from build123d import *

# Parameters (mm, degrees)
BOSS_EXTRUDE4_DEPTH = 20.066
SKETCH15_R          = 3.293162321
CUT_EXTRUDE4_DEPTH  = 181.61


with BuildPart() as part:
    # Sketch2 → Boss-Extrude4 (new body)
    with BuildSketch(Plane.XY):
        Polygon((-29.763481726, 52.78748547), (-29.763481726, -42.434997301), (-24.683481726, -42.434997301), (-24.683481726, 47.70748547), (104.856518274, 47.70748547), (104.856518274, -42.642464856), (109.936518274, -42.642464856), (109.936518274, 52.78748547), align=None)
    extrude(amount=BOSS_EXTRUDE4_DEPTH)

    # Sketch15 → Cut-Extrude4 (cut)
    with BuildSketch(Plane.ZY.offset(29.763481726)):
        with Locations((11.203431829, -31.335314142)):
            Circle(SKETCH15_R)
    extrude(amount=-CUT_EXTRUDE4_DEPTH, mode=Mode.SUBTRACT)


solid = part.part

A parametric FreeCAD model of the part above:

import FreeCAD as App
import Part
import Sketcher

V = App.Vector
Q = App.Units.Quantity


def add_polygon(sketch, points):
    """Adds a closed chain of lines whose ends are joined by coincident constraints."""
    first, n = sketch.GeometryCount, len(points)
    for a, b in zip(points, points[1:] + points[:1]):
        sketch.addGeometry(Part.LineSegment(App.Vector(*a, 0), App.Vector(*b, 0)), False)
    for i in range(n):
        sketch.addConstraint(Sketcher.Constraint("Coincident", first + i, 2, first + (i + 1) % n, 1))

doc = App.newDocument("Part")
params = doc.addObject("Spreadsheet::Sheet", "Params")
for row, (alias, value) in enumerate([
    ("sketch1_width", "0.2 in"),
    ("sketch1_width2", "5.1 in"),
    ("pad1_length", "0.79 in"),
    ("pocket1_length", "7.15 in"),
], start=1):
    params.set(f"A{row}", alias)
    params.set(f"B{row}", "=" + value)
    params.setAlias(f"B{row}", alias)

body = doc.addObject("PartDesign::Body", "Body")

# Sketch on XY plane
sketch1 = body.newObject("Sketcher::SketchObject", "Sketch")
sketch1.AttachmentSupport = (doc.getObject("XY_Plane"), [""])
sketch1.MapMode = "FlatFace"
add_polygon(sketch1, [(-30, 53), (-30, -42), (-25, -42), (-25, 48), (105, 48), (105, -43), (110, -43), (110, 53)])  # lines 0-7
sketch1.addConstraint([
    Sketcher.Constraint("Vertical", 0),
    Sketcher.Constraint("Horizontal", 1),
    Sketcher.Constraint("Vertical", 2),
    Sketcher.Constraint("Horizontal", 3),
    Sketcher.Constraint("Vertical", 4),
    Sketcher.Constraint("Horizontal", 5),
    Sketcher.Constraint("Vertical", 6),
    Sketcher.Constraint("Horizontal", 7),
    Sketcher.Constraint("Equal", 1, 5),
    Sketcher.Constraint("DistanceX", 1, 1, 1, 2, Q("0.2 in")),
    Sketcher.Constraint("DistanceX", 3, 1, 3, 2, Q("5.1 in")),
    Sketcher.Constraint("DistanceY", 3, 2, 6, 2, Q("0.2 in")),
    Sketcher.Constraint("DistanceY", 4, 2, 4, 1, Q("90.34995 mm")),
    Sketcher.Constraint("DistanceY", 0, 2, 0, 1, Q("95.222483 mm")),
    Sketcher.Constraint("DistanceX", 0, 2, -1, 1, Q("29.763482 mm")),
    Sketcher.Constraint("DistanceY", 0, 2, -1, 1, Q("42.434997 mm")),
])
sketch1.setExpression("Constraints[17]", "Params.sketch1_width")
sketch1.setExpression("Constraints[18]", "Params.sketch1_width2")
pad1 = body.newObject("PartDesign::Pad", "Pad")
pad1.Profile = sketch1
pad1.setExpression("Length", "Params.pad1_length")

# Sketch on YZ plane
sketch2 = body.newObject("Sketcher::SketchObject", "Sketch001")
sketch2.AttachmentSupport = (doc.getObject("YZ_Plane"), [""])
sketch2.MapMode = "FlatFace"
sketch2.AttachmentOffset = App.Placement(V(0, 0, -29.763482), App.Rotation())
sketch2.addGeometry(Part.Circle(V(-31.3, 11.2, 0), V(0, 0, 1), 3.3), False)
sketch2.addConstraint([
    Sketcher.Constraint("Diameter", 0, Q("6.586325 mm")),
    Sketcher.Constraint("DistanceY", -1, 1, 0, 3, Q("11.203432 mm")),
    Sketcher.Constraint("DistanceX", 0, 3, -1, 1, Q("31.335314 mm")),
])
pocket1 = body.newObject("PartDesign::Pocket", "Pocket")
pocket1.Profile = sketch2
pocket1.setExpression("Length", "Params.pocket1_length")
pocket1.Reversed = True

doc.recompute()
